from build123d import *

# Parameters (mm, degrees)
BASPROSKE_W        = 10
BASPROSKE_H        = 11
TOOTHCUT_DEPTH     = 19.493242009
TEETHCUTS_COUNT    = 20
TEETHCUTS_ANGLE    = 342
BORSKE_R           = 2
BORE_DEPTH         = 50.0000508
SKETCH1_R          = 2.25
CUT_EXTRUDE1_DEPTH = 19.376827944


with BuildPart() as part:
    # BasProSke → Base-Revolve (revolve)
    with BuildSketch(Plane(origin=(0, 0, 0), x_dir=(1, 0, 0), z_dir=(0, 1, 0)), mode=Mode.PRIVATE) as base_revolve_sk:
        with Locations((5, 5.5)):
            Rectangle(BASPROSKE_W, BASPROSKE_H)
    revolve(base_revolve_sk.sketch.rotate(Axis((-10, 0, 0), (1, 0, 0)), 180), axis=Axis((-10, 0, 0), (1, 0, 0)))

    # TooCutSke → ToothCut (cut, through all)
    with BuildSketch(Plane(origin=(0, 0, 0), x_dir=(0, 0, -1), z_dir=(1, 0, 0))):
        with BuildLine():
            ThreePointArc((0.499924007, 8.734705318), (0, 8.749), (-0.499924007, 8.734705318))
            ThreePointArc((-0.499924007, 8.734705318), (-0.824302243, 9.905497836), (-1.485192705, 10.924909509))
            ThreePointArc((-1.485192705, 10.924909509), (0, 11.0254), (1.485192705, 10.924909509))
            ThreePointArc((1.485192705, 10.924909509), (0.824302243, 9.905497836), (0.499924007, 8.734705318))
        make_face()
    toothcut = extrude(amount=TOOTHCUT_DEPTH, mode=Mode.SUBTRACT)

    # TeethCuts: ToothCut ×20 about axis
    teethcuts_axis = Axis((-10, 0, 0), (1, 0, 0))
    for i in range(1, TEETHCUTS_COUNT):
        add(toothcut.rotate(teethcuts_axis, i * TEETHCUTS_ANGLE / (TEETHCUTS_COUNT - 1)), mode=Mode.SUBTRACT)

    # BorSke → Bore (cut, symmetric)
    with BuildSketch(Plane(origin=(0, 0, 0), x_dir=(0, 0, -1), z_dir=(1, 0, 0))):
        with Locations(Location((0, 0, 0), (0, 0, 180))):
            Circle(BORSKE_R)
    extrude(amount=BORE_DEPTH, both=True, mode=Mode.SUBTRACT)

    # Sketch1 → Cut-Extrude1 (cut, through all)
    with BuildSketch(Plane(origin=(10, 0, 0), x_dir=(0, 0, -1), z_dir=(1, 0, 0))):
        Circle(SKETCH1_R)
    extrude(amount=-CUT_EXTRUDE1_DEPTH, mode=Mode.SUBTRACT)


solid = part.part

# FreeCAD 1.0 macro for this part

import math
import FreeCAD as App
import Part
import Sketcher

V = App.Vector

doc = App.newDocument("Part")
params = doc.addObject("Spreadsheet::Sheet", "Params")
for row, (alias, value) in enumerate([
    ("sketch1_width", "10 mm"),
    ("sketch1_height", "11 mm"),
    ("revolution_angle", "360 deg"),
    ("sketch2_radius", "4 mm"),
    ("sketch3_diameter", "4 mm"),
    ("pocket2_length", "100.000102 mm"),
    ("sketch4_diameter", "4.5 mm"),
], start=1):
    params.set(f"A{row}", alias)
    params.set(f"B{row}", "=" + value)
    params.setAlias(f"B{row}", alias)

body = doc.addObject("PartDesign::Body", "Body")

# Sketch on XZ plane
sketch1 = body.newObject("Sketcher::SketchObject", "Sketch")
sketch1.AttachmentSupport = (doc.getObject("XZ_Plane"), [""])
sketch1.MapMode = "FlatFace"
sketch1.addGeometry([
    Part.LineSegment(V(0, -11, 0), V(0, 0, 0)),
    Part.LineSegment(V(0, 0, 0), V(10, 0, 0)),
    Part.LineSegment(V(10, 0, 0), V(10, -11, 0)),
    Part.LineSegment(V(10, -11, 0), V(0, -11, 0)),
], False)
sketch1.addConstraint([
    Sketcher.Constraint("Coincident", 0, 2, 1, 1),
    Sketcher.Constraint("Coincident", 1, 2, 2, 1),
    Sketcher.Constraint("Coincident", 2, 2, 3, 1),
    Sketcher.Constraint("Coincident", 3, 2, 0, 1),
    Sketcher.Constraint("Vertical", 0),
    Sketcher.Constraint("Horizontal", 1),
    Sketcher.Constraint("Vertical", 2),
    Sketcher.Constraint("Horizontal", 3),
    Sketcher.Constraint("Coincident", 0, 2, -1, 1),
    Sketcher.Constraint("DistanceX", 1, 1, 1, 2, 10.0),
    Sketcher.Constraint("DistanceY", 0, 1, 0, 2, 11.0),
])
sketch1.setExpression("Constraints[9]", "Params.sketch1_width")
sketch1.setExpression("Constraints[10]", "Params.sketch1_height")
revolution = body.newObject("PartDesign::Revolution", "Revolution")
revolution.Profile = sketch1
revolution.ReferenceAxis = (sketch1, ["H_Axis"])
revolution.setExpression("Angle", "Params.revolution_angle")

# Sketch on YZ plane
sketch2 = body.newObject("Sketcher::SketchObject", "Sketch001")
sketch2.AttachmentSupport = (doc.getObject("YZ_Plane"), [""])
sketch2.MapMode = "FlatFace"
sketch2.addGeometry([
    Part.ArcOfCircle(Part.Circle(V(0, 0, 0), V(0, 0, 1), 8.7), math.radians(-3.28), math.radians(3.28)),
    Part.ArcOfCircle(Part.Circle(V(8.3, -4.5, 0), V(0, 0, 1), 4), math.radians(48), math.radians(83)),
    Part.ArcOfCircle(Part.Circle(V(0, 0, 0), V(0, 0, 1), 11), math.radians(-7.74), math.radians(7.74)),
    Part.ArcOfCircle(Part.Circle(V(8.3, 4.5, 0), V(0, 0, 1), 4), math.radians(-83), math.radians(-48)),
], False)
sketch2.addConstraint([
    Sketcher.Constraint("Coincident", 0, 1, 1, 2),
    Sketcher.Constraint("Coincident", 1, 1, 2, 1),
    Sketcher.Constraint("Coincident", 2, 2, 3, 2),
    Sketcher.Constraint("Coincident", 3, 1, 0, 2),
    Sketcher.Constraint("Coincident", 0, 3, -1, 1),
    Sketcher.Constraint("Coincident", 2, 3, -1, 1),
    Sketcher.Constraint("Equal", 1, 3),
    Sketcher.Constraint("Symmetric", 1, 3, 3, 3, -1),
    Sketcher.Constraint("Radius", 1, 4.0),
    Sketcher.Constraint("Radius", 0, 8.749),
    Sketcher.Constraint("Radius", 2, 11.0254),
    Sketcher.Constraint("DistanceY", 1, 3, -1, 1, 4.47219),
    Sketcher.Constraint("DistanceX", -1, 1, 1, 1, 10.92491),
])
sketch2.setExpression("Constraints[8]", "Params.sketch2_radius")
pocket1 = body.newObject("PartDesign::Pocket", "Pocket")
pocket1.Profile = sketch2
pocket1.Type = "ThroughAll"
pocket1.Reversed = True
doc.recompute()

polarpattern = body.newObject("PartDesign::PolarPattern", "PolarPattern")
polarpattern.Originals = [pocket1]
polarpattern.Axis = (doc.getObject("X_Axis"), [""])
polarpattern.Angle = 360
polarpattern.Occurrences = 20
body.Tip = polarpattern

# Sketch on YZ plane
sketch3 = body.newObject("Sketcher::SketchObject", "Sketch002")
sketch3.AttachmentSupport = (doc.getObject("YZ_Plane"), [""])
sketch3.MapMode = "FlatFace"
sketch3.addGeometry(Part.Circle(V(0, 0, 0), V(0, 0, 1), 2), False)
sketch3.addConstraint([
    Sketcher.Constraint("Coincident", 0, 3, -1, 1),
    Sketcher.Constraint("Diameter", 0, 4.0),
])
sketch3.setExpression("Constraints[1]", "Params.sketch3_diameter")
pocket2 = body.newObject("PartDesign::Pocket", "Pocket001")
pocket2.Profile = sketch3
pocket2.setExpression("Length", "Params.pocket2_length")
pocket2.Midplane = True

# Sketch on YZ plane
sketch4 = body.newObject("Sketcher::SketchObject", "Sketch003")
sketch4.AttachmentSupport = (doc.getObject("YZ_Plane"), [""])
sketch4.MapMode = "FlatFace"
sketch4.AttachmentOffset = App.Placement(V(0, 0, 10), App.Rotation())
sketch4.addGeometry(Part.Circle(V(0, 0, 0), V(0, 0, 1), 2.2), False)
sketch4.addConstraint([
    Sketcher.Constraint("Coincident", 0, 3, -1, 1),
    Sketcher.Constraint("Diameter", 0, 4.5),
])
sketch4.setExpression("Constraints[1]", "Params.sketch4_diameter")
pocket3 = body.newObject("PartDesign::Pocket", "Pocket002")
pocket3.Profile = sketch4
pocket3.Type = "ThroughAll"

doc.recompute()
